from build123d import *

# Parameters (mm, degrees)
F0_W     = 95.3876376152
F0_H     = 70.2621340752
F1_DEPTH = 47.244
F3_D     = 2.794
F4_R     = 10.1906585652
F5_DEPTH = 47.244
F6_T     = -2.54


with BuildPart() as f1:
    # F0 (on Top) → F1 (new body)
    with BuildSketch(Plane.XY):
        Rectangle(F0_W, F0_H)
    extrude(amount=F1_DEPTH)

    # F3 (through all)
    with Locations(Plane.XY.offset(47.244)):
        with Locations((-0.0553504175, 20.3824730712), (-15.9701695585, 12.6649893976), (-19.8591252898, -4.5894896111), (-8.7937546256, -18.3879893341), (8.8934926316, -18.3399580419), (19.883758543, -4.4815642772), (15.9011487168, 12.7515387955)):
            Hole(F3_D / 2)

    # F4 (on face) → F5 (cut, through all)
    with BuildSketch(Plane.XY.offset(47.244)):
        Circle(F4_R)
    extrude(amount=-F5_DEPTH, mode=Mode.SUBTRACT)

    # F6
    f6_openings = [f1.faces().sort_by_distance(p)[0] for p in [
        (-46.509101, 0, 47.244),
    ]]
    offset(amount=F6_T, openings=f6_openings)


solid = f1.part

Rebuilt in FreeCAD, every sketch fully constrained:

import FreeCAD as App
import Part
import Sketcher
from FreeCAD import Vector
Q = App.Units.Quantity


def faces_at(feature, points):
    """Names of the faces that lie closest to the given points."""
    faces = feature.Shape.Faces
    near = lambda p: min(range(len(faces)), key=lambda i: faces[i].distToShape(Part.Vertex(*p))[0])
    return sorted({f"Face{near(p) + 1}" for p in points})


def add_polygon(sketch, points):
    """Adds a closed chain of lines whose ends are joined by coincident constraints."""
    first, n = sketch.GeometryCount, len(points)
    for a, b in zip(points, points[1:] + points[:1]):
        sketch.addGeometry(Part.LineSegment(App.Vector(*a, 0), App.Vector(*b, 0)), False)
    for i in range(n):
        sketch.addConstraint(Sketcher.Constraint("Coincident", first + i, 2, first + (i + 1) % n, 1))

doc = App.newDocument("Part")
body = doc.addObject("PartDesign::Body", "Body")

sketch1 = doc.addObject("Sketcher::SketchObject", "Sketch")
body.addObject(sketch1)
sketch1.AttachmentSupport = (doc.XY_Plane, [""])
sketch1.MapMode = "FlatFace"
add_polygon(sketch1, [(-48, 35), (-48, -35), (48, -35), (48, 35)])
sketch1.addConstraint([
    Sketcher.Constraint("Vertical", 0),
    Sketcher.Constraint("Horizontal", 1),
    Sketcher.Constraint("Vertical", 2),
    Sketcher.Constraint("Horizontal", 3),
    Sketcher.Constraint("Symmetric", 0, 2, 2, 2, -1, 1),
    Sketcher.Constraint("DistanceX", 1, 1, 1, 2, 95.387638),
    Sketcher.Constraint("DistanceY", 0, 2, 0, 1, 70.262134),
])
pad1 = doc.addObject("PartDesign::Pad", "Pad")
body.addObject(pad1)
pad1.Profile = sketch1
pad1.Length = Q("1.86 in")

sketch2 = doc.addObject("Sketcher::SketchObject", "Sketch001")
body.addObject(sketch2)
sketch2.AttachmentSupport = (doc.XY_Plane, [""])
sketch2.MapMode = "FlatFace"
sketch2.AttachmentOffset = App.Placement(Vector(0, 0, 1.86 * 25.4), App.Rotation())
sketch2.addGeometry([
    Part.Circle(Vector(-0.1, 20.4, 0), Vector(0, 0, 1), 1.4),
    Part.Circle(Vector(-16, 12.7, 0), Vector(0, 0, 1), 1.4),
    Part.Circle(Vector(-19.9, -4.6, 0), Vector(0, 0, 1), 1.4),
    Part.Circle(Vector(-8.8, -18.4, 0), Vector(0, 0, 1), 1.4),
    Part.Circle(Vector(8.9, -18.3, 0), Vector(0, 0, 1), 1.4),
    Part.Circle(Vector(19.9, -4.5, 0), Vector(0, 0, 1), 1.4),
    Part.Circle(Vector(15.9, 12.8, 0), Vector(0, 0, 1), 1.4),
], False)
sketch2.addConstraint([
    Sketcher.Constraint("Equal", 0, 1),
    Sketcher.Constraint("Equal", 1, 2),
    Sketcher.Constraint("Equal", 2, 3),
    Sketcher.Constraint("Equal", 3, 4),
    Sketcher.Constraint("Equal", 4, 5),
    Sketcher.Constraint("Equal", 5, 6),
    Sketcher.Constraint("Diameter", 0, Q("0.11 in")),
    Sketcher.Constraint("DistanceY", 3, 3, 2, 3, 13.7985),
    Sketcher.Constraint("DistanceX", 0, 3, 6, 3, 15.956499),
    Sketcher.Constraint("DistanceX", 0, 3, -1, 1, 0.05535),
    Sketcher.Constraint("DistanceX", 1, 3, -1, 1, 15.97017),
    Sketcher.Constraint("DistanceY", -1, 1, 1, 3, 12.664989),
    Sketcher.Constraint("DistanceY", 2, 3, -1, 1, 4.58949),
    Sketcher.Constraint("DistanceY", 4, 3, -1, 1, 18.339958),
    Sketcher.Constraint("DistanceX", -1, 1, 5, 3, 19.883759),
    Sketcher.Constraint("DistanceY", -1, 1, 6, 3, 12.751539),
    Sketcher.Constraint("DistanceX", 2, 3, 3, 3, 11.065371),
    Sketcher.Constraint("DistanceY", 4, 3, 0, 3, 38.722431),
    Sketcher.Constraint("DistanceX", 2, 3, -1, 1, 19.859125),
    Sketcher.Constraint("DistanceX", -1, 1, 4, 3, 8.893493),
    Sketcher.Constraint("DistanceY", 5, 3, -1, 1, 4.481564),
])
doc.recompute()
hole = doc.addObject("PartDesign::Hole", "Hole")
body.addObject(hole)
hole.Profile = sketch2
hole.ThreadType = "None"
hole.Diameter = Q("0.11 in")
hole.DepthType = "ThroughAll"

sketch3 = doc.addObject("Sketcher::SketchObject", "Sketch002")
body.addObject(sketch3)
sketch3.AttachmentSupport = (doc.XY_Plane, [""])
sketch3.MapMode = "FlatFace"
sketch3.AttachmentOffset = App.Placement(Vector(0, 0, 1.86 * 25.4), App.Rotation())
sketch3.addGeometry(Part.Circle(Vector(0, 0, 0), Vector(0, 0, 1), 10), False)
sketch3.addConstraint([
    Sketcher.Constraint("Coincident", 0, 3, -1, 1),
    Sketcher.Constraint("Diameter", 0, 20.381317),
])
pocket1 = doc.addObject("PartDesign::Pocket", "Pocket")
body.addObject(pocket1)
pocket1.Profile = sketch3
pocket1.Type = "ThroughAll"
doc.recompute()

thickness = doc.addObject("PartDesign::Thickness", "Thickness")
body.addObject(thickness)
thickness.Base = (pocket1, faces_at(pocket1, [(-19.078, -14.052, 47.244)]))
thickness.Value = Q("0.1 in")
thickness.Reversed = True
thickness.Join = "Arc"

doc.recompute()
